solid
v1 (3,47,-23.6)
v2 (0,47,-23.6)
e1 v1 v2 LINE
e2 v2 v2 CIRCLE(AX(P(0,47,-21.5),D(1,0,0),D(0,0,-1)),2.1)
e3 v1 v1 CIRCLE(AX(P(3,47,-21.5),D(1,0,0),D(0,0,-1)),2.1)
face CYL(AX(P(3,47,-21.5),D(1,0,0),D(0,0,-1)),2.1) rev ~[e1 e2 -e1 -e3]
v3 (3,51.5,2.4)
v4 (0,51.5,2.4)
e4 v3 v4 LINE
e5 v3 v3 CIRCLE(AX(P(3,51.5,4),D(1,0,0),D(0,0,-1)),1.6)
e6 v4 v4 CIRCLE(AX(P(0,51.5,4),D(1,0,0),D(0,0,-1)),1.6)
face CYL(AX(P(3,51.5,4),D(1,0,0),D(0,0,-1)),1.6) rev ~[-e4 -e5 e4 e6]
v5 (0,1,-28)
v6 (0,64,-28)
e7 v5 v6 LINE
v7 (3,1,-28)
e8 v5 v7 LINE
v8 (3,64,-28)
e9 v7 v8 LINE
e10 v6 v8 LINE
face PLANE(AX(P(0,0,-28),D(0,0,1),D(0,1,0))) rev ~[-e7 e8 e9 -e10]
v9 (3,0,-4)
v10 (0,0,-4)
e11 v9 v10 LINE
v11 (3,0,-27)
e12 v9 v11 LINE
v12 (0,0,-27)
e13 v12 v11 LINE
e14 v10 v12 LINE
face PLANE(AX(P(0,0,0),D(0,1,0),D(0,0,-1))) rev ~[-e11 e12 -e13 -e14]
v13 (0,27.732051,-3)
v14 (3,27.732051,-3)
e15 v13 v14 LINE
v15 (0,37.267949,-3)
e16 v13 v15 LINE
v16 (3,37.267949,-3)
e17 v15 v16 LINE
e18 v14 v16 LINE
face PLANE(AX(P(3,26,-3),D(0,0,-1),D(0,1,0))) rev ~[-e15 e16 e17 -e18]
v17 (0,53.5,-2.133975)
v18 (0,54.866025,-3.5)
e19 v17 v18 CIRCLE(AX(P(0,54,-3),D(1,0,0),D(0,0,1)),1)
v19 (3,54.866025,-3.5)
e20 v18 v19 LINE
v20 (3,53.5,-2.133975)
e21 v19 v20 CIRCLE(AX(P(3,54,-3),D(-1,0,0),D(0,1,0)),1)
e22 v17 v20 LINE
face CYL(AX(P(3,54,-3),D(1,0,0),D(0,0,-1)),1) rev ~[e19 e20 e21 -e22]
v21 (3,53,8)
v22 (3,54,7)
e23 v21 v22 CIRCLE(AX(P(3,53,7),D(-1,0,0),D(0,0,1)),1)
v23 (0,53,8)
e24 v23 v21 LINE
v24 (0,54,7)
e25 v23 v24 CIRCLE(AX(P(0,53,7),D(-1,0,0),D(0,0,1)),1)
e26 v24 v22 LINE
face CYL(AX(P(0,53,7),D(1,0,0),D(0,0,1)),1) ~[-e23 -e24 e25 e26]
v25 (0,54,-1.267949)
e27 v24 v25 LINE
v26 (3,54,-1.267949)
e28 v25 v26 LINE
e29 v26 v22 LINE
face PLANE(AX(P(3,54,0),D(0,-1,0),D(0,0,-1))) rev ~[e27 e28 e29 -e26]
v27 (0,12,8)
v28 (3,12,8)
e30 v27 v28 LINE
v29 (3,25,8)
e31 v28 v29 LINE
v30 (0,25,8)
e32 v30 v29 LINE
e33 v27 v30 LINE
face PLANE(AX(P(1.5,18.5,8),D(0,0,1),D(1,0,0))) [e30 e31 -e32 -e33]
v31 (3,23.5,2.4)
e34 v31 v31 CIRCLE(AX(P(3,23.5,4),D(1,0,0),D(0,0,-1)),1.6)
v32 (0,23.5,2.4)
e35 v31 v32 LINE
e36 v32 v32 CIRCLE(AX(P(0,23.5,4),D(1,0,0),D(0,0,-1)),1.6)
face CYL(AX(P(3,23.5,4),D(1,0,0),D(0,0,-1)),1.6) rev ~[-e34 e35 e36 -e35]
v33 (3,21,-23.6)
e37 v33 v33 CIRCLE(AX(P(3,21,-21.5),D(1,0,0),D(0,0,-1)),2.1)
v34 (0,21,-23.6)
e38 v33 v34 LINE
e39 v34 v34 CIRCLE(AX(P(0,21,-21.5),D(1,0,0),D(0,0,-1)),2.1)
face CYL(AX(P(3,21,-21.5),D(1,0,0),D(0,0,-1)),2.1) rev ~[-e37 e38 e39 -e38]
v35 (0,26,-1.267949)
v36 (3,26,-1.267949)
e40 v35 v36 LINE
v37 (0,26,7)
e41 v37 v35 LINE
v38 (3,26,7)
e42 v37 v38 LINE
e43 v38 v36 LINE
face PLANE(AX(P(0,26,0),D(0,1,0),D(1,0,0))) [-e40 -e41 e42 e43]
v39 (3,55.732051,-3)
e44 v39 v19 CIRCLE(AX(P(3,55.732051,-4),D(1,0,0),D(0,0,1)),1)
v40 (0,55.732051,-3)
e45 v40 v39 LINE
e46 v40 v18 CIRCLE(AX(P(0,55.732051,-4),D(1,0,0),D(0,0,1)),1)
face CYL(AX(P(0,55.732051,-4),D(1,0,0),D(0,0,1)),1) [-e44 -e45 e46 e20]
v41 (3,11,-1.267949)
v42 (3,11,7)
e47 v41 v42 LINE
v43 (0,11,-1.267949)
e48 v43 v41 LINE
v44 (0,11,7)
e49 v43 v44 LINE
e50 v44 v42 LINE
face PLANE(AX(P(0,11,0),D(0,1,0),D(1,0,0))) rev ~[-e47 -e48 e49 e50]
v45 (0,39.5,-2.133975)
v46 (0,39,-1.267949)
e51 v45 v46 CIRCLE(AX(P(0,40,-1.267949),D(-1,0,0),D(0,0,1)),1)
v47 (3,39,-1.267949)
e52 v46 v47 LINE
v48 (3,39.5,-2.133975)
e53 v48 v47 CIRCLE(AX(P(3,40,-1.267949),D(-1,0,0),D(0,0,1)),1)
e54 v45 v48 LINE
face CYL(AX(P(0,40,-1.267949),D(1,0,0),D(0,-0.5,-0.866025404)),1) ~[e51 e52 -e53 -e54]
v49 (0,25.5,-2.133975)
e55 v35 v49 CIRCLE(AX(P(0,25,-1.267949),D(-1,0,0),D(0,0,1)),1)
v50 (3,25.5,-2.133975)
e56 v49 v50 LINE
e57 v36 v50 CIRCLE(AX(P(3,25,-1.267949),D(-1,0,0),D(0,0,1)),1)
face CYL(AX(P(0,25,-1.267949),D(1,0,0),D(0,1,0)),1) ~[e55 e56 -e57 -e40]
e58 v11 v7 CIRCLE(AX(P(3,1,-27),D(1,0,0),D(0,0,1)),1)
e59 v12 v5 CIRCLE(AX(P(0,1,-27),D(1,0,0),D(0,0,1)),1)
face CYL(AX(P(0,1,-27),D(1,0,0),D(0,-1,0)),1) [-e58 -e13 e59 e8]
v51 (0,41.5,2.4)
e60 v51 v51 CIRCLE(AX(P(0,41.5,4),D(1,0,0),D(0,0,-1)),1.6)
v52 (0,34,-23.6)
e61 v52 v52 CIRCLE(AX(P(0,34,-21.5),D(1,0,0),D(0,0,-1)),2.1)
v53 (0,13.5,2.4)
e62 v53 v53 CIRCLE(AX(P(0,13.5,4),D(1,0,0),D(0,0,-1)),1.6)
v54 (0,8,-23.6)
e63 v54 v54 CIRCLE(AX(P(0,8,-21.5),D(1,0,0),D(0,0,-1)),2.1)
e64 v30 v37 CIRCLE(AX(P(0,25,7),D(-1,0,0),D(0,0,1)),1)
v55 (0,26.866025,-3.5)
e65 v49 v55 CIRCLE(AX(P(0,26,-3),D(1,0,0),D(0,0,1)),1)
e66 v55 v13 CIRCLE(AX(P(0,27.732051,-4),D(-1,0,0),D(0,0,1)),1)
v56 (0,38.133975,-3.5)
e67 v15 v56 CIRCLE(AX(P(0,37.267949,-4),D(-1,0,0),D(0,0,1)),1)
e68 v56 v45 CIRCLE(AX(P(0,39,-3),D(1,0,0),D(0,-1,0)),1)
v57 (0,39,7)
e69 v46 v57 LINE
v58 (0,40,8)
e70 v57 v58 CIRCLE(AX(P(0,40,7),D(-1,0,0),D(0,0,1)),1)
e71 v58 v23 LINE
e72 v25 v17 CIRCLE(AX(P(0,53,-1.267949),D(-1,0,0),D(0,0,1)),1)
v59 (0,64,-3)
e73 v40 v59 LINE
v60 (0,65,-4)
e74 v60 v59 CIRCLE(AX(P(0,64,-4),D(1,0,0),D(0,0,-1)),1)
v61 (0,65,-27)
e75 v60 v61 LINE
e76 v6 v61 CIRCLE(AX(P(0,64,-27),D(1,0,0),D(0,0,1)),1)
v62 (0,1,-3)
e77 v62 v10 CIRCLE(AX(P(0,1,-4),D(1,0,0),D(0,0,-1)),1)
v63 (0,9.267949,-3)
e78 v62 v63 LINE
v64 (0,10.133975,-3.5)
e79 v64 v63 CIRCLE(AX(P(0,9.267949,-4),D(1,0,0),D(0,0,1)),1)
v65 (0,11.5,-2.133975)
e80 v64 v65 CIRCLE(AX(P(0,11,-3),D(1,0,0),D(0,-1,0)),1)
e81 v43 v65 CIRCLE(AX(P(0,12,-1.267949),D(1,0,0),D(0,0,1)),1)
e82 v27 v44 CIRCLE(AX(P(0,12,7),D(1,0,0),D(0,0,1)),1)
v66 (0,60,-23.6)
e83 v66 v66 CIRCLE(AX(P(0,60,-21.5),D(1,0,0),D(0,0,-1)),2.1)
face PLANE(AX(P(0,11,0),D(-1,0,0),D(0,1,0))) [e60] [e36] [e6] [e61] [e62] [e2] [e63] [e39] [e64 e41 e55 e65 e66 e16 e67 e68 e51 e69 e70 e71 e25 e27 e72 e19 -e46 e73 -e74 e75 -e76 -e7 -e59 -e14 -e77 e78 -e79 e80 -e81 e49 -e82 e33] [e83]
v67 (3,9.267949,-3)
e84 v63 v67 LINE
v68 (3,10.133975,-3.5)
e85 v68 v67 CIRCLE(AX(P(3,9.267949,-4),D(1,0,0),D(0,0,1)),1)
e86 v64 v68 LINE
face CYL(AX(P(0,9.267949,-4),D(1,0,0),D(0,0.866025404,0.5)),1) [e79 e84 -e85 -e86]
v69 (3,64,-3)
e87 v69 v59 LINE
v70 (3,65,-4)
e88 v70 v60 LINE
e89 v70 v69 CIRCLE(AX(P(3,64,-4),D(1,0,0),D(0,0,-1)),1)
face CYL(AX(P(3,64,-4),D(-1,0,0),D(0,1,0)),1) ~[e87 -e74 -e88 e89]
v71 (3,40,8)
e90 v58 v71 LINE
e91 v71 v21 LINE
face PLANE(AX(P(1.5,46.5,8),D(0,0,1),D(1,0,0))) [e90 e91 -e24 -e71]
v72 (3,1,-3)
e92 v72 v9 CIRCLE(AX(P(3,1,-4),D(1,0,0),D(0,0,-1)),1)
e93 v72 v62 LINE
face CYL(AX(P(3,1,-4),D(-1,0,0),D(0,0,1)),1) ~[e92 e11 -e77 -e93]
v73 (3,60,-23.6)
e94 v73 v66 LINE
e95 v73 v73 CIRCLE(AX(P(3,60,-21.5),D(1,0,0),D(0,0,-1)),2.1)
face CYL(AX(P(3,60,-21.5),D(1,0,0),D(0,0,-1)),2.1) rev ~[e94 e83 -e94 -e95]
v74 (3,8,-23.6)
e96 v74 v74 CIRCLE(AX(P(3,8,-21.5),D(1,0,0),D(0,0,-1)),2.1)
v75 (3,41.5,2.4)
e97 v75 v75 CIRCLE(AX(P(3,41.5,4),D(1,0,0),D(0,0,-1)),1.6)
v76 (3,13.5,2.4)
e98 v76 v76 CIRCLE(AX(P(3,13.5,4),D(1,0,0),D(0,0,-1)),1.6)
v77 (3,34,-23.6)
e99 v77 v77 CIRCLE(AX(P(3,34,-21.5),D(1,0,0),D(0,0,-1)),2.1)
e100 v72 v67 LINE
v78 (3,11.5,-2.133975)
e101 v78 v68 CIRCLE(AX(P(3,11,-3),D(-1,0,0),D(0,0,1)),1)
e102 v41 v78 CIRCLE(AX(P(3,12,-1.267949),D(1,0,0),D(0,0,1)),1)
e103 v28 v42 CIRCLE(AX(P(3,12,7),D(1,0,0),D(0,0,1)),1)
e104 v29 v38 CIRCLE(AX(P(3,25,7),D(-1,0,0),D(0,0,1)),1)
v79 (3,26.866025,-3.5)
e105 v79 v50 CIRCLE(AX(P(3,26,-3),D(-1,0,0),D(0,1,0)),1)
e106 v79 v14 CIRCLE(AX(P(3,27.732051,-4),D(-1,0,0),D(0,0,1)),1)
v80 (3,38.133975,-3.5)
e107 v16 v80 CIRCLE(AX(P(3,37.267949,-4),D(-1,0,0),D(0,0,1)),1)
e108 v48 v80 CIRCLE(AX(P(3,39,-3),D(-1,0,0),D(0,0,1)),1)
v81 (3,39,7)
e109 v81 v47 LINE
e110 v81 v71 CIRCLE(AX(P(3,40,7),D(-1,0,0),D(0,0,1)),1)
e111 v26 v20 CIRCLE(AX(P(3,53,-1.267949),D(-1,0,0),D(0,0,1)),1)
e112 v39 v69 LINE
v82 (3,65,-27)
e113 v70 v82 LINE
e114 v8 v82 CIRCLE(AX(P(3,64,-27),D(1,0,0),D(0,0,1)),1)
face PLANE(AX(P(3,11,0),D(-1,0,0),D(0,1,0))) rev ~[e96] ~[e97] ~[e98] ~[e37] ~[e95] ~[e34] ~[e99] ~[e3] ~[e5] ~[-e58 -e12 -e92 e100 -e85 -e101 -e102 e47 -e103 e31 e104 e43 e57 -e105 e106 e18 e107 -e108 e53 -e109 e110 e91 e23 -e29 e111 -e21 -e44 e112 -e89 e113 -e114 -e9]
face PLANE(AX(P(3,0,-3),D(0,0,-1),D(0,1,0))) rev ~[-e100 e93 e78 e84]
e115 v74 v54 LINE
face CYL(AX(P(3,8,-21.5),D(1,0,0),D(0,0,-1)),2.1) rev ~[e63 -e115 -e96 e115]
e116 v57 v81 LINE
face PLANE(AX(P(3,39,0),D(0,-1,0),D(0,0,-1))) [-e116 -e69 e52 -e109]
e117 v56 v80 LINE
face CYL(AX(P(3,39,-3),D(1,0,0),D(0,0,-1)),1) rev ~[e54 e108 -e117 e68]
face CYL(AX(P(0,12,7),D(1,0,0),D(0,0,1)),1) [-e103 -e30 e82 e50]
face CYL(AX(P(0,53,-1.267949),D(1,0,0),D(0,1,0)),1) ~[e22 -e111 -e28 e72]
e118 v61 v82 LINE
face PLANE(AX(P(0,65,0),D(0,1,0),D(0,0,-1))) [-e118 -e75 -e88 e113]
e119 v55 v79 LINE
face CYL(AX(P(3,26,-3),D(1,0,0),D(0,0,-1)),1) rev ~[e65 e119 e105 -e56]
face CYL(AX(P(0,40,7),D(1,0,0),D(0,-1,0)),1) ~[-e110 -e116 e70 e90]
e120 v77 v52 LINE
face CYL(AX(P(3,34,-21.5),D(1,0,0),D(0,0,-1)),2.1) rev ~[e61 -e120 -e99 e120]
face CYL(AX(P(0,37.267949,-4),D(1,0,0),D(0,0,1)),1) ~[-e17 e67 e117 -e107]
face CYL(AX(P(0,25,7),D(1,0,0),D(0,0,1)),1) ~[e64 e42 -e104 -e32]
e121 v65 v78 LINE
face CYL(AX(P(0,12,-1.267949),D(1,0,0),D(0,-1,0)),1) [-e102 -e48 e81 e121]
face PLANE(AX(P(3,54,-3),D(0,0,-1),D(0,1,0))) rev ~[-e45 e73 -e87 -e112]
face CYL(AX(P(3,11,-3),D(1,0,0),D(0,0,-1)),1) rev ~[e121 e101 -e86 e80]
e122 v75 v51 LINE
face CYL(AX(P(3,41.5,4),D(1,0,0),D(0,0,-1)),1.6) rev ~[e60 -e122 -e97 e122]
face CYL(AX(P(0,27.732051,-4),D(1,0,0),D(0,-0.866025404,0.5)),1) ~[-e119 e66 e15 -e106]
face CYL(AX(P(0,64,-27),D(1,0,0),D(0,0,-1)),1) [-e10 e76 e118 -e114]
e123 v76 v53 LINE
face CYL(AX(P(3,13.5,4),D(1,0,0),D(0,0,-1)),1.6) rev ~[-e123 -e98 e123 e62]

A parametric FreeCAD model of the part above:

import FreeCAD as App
import Part
import Sketcher
from FreeCAD import Vector


def edges_at(feature, points):
    """Names of the edges that pass closest to the given points."""
    edges = feature.Shape.Edges
    near = lambda p: min(range(len(edges)), key=lambda i: edges[i].distToShape(Part.Vertex(*p))[0])
    return sorted({f"Edge{near(p) + 1}" for p in points})

doc = App.newDocument("Part")
body = doc.addObject("PartDesign::Body", "Body")

# Sketch on YZ plane
sketch1 = body.newObject("Sketcher::SketchObject", "Sketch")
sketch1.AttachmentSupport = (doc.getObject("YZ_Plane"), [""])
sketch1.MapMode = "FlatFace"
sketch1.addGeometry([
    Part.LineSegment(Vector(65, 0, 0), Vector(0, 0, 0)),
    Part.LineSegment(Vector(0, 0, 0), Vector(0, -28, 0)),
    Part.LineSegment(Vector(0, -28, 0), Vector(65, -28, 0)),
    Part.LineSegment(Vector(65, -28, 0), Vector(65, 0, 0)),
], False)
sketch1.addConstraint([
    Sketcher.Constraint("Coincident", 0, 2, 1, 1),
    Sketcher.Constraint("Coincident", 1, 2, 2, 1),
    Sketcher.Constraint("Coincident", 2, 2, 3, 1),
    Sketcher.Constraint("Coincident", 3, 2, 0, 1),
    Sketcher.Constraint("Horizontal", 0),
    Sketcher.Constraint("Vertical", 1),
    Sketcher.Constraint("Horizontal", 2),
    Sketcher.Constraint("Vertical", 3),
    Sketcher.Constraint("Coincident", 0, 2, -1, 1),
    Sketcher.Constraint("DistanceX", 0, 2, 0, 1, 65.0),
    Sketcher.Constraint("DistanceY", 1, 2, 1, 1, 28.0),
])
pad1 = body.newObject("PartDesign::Pad", "Pad")
pad1.Profile = sketch1
pad1.Length = 3

# Sketch on YZ plane
sketch2 = body.newObject("Sketcher::SketchObject", "Sketch001")
sketch2.AttachmentSupport = (doc.getObject("YZ_Plane"), [""])
sketch2.MapMode = "FlatFace"
sketch2.AttachmentOffset = App.Placement(Vector(0, 0, 3), App.Rotation())
sketch2.addGeometry([
    Part.LineSegment(Vector(65, 0, 0), Vector(54, 0, 0)),  # 0
    Part.LineSegment(Vector(54, 0, 0), Vector(54, -3, 0)),  # 1
    Part.LineSegment(Vector(54, -3, 0), Vector(65, -3, 0)),  # 2
    Part.LineSegment(Vector(65, -3, 0), Vector(65, 0, 0)),  # 3
    Part.LineSegment(Vector(39, 0, 0), Vector(26, 0, 0)),  # 4
    Part.LineSegment(Vector(26, 0, 0), Vector(26, -3, 0)),  # 5
    Part.LineSegment(Vector(26, -3, 0), Vector(39, -3, 0)),  # 6
    Part.LineSegment(Vector(39, -3, 0), Vector(39, 0, 0)),  # 7
    Part.LineSegment(Vector(11, 0, 0), Vector(0, 0, 0)),  # 8
    Part.LineSegment(Vector(0, 0, 0), Vector(0, -3, 0)),  # 9
    Part.LineSegment(Vector(0, -3, 0), Vector(11, -3, 0)),  # 10
    Part.LineSegment(Vector(11, -3, 0), Vector(11, 0, 0)),  # 11
], False)
sketch2.addConstraint([
    Sketcher.Constraint("Coincident", 0, 2, 1, 1),
    Sketcher.Constraint("Coincident", 1, 2, 2, 1),
    Sketcher.Constraint("Coincident", 2, 2, 3, 1),
    Sketcher.Constraint("Coincident", 3, 2, 0, 1),
    Sketcher.Constraint("Coincident", 4, 2, 5, 1),
    Sketcher.Constraint("Coincident", 5, 2, 6, 1),
    Sketcher.Constraint("Coincident", 6, 2, 7, 1),
    Sketcher.Constraint("Coincident", 7, 2, 4, 1),
    Sketcher.Constraint("Coincident", 8, 2, 9, 1),
    Sketcher.Constraint("Coincident", 9, 2, 10, 1),
    Sketcher.Constraint("Coincident", 10, 2, 11, 1),
    Sketcher.Constraint("Coincident", 11, 2, 8, 1),
    Sketcher.Constraint("Horizontal", 0),
    Sketcher.Constraint("Vertical", 1),
    Sketcher.Constraint("Horizontal", 2),
    Sketcher.Constraint("Vertical", 3),
    Sketcher.Constraint("Horizontal", 4),
    Sketcher.Constraint("Vertical", 5),
    Sketcher.Constraint("Horizontal", 6),
    Sketcher.Constraint("Vertical", 7),
    Sketcher.Constraint("Horizontal", 8),
    Sketcher.Constraint("Vertical", 9),
    Sketcher.Constraint("Horizontal", 10),
    Sketcher.Constraint("Vertical", 11),
    Sketcher.Constraint("Coincident", 8, 2, -1, 1),
    Sketcher.Constraint("PointOnObject", 0, 2, -1),
    Sketcher.Constraint("PointOnObject", 4, 2, -1),
    Sketcher.Constraint("Horizontal", 2, 2, 5, 2),
    Sketcher.Constraint("Horizontal", 6, 2, 9, 2),
    Sketcher.Constraint("Equal", 2, 8),
    Sketcher.Constraint("DistanceX", 0, 2, 0, 1, 11.0),
    Sketcher.Constraint("DistanceX", 4, 2, 4, 1, 13.0),
    Sketcher.Constraint("DistanceY", 1, 2, 1, 1, 3.0),
    Sketcher.Constraint("DistanceX", -1, 1, 0, 2, 54.0),
    Sketcher.Constraint("DistanceX", -1, 1, 4, 2, 26.0),
])
pocket1 = body.newObject("PartDesign::Pocket", "Pocket")
pocket1.Profile = sketch2
pocket1.Type = "ThroughAll"

# Sketch on YZ plane
sketch3 = body.newObject("Sketcher::SketchObject", "Sketch002")
sketch3.AttachmentSupport = (doc.getObject("YZ_Plane"), [""])
sketch3.MapMode = "FlatFace"
sketch3.AttachmentOffset = App.Placement(Vector(0, 0, 3), App.Rotation())
sketch3.addGeometry([
    Part.Circle(Vector(60, -21.5, 0), Vector(0, 0, 1), 2.1),  # 0
    Part.Circle(Vector(47, -21.5, 0), Vector(0, 0, 1), 2.1),  # 1
    Part.Circle(Vector(34, -21.5, 0), Vector(0, 0, 1), 2.1),  # 2
    Part.Circle(Vector(21, -21.5, 0), Vector(0, 0, 1), 2.1),  # 3
    Part.Circle(Vector(8, -21.5, 0), Vector(0, 0, 1), 2.1),  # 4
], False)
sketch3.addConstraint([
    Sketcher.Constraint("Equal", 0, 1),
    Sketcher.Constraint("Equal", 1, 2),
    Sketcher.Constraint("Equal", 2, 3),
    Sketcher.Constraint("Equal", 3, 4),
    Sketcher.Constraint("Horizontal", 0, 3, 1, 3),
    Sketcher.Constraint("Horizontal", 1, 3, 2, 3),
    Sketcher.Constraint("Horizontal", 2, 3, 3, 3),
    Sketcher.Constraint("Horizontal", 3, 3, 4, 3),
    Sketcher.Constraint("Diameter", 0, 4.2),
    Sketcher.Constraint("DistanceX", -1, 1, 0, 3, 60.0),
    Sketcher.Constraint("DistanceX", -1, 1, 1, 3, 47.0),
    Sketcher.Constraint("DistanceX", -1, 1, 2, 3, 34.0),
    Sketcher.Constraint("DistanceX", -1, 1, 3, 3, 21.0),
    Sketcher.Constraint("DistanceX", -1, 1, 4, 3, 8.0),
    Sketcher.Constraint("DistanceY", 0, 3, -1, 1, 21.5),
])
pocket2 = body.newObject("PartDesign::Pocket", "Pocket001")
pocket2.Profile = sketch3
pocket2.Type = "ThroughAll"

# Sketch on YZ plane
sketch4 = body.newObject("Sketcher::SketchObject", "Sketch003")
sketch4.AttachmentSupport = (doc.getObject("YZ_Plane"), [""])
sketch4.MapMode = "FlatFace"
sketch4.AttachmentOffset = App.Placement(Vector(0, 0, 3), App.Rotation())
sketch4.addGeometry([
    Part.Circle(Vector(54, -3, 0), Vector(0, 0, 1), 1),
    Part.Circle(Vector(39, -3, 0), Vector(0, 0, 1), 1),
    Part.Circle(Vector(26, -3, 0), Vector(0, 0, 1), 1),
    Part.Circle(Vector(11, -3, 0), Vector(0, 0, 1), 1),
], False)
sketch4.addConstraint([
    Sketcher.Constraint("Equal", 0, 1),
    Sketcher.Constraint("Equal", 1, 2),
    Sketcher.Constraint("Equal", 2, 3),
    Sketcher.Constraint("Horizontal", 0, 3, 1, 3),
    Sketcher.Constraint("Horizontal", 1, 3, 2, 3),
    Sketcher.Constraint("Horizontal", 2, 3, 3, 3),
    Sketcher.Constraint("Diameter", 0, 2.0),
    Sketcher.Constraint("DistanceX", -1, 1, 0, 3, 54.0),
    Sketcher.Constraint("DistanceY", 0, 3, -1, 1, 3.0),
    Sketcher.Constraint("DistanceX", -1, 1, 1, 3, 39.0),
    Sketcher.Constraint("DistanceX", -1, 1, 2, 3, 26.0),
    Sketcher.Constraint("DistanceX", -1, 1, 3, 3, 11.0),
])
pocket3 = body.newObject("PartDesign::Pocket", "Pocket002")
pocket3.Profile = sketch4
pocket3.Type = "ThroughAll"

# Sketch on XY plane
sketch5 = body.newObject("Sketcher::SketchObject", "Sketch004")
sketch5.AttachmentSupport = (doc.getObject("XY_Plane"), [""])
sketch5.MapMode = "FlatFace"
sketch5.addGeometry([
    Part.LineSegment(Vector(0, 26, 0), Vector(0, 11, 0)),  # 0
    Part.LineSegment(Vector(0, 11, 0), Vector(3, 11, 0)),  # 1
    Part.LineSegment(Vector(3, 11, 0), Vector(3, 26, 0)),  # 2
    Part.LineSegment(Vector(3, 26, 0), Vector(0, 26, 0)),  # 3
    Part.LineSegment(Vector(0, 54, 0), Vector(0, 39, 0)),  # 4
    Part.LineSegment(Vector(0, 39, 0), Vector(3, 39, 0)),  # 5
    Part.LineSegment(Vector(3, 39, 0), Vector(3, 54, 0)),  # 6
    Part.LineSegment(Vector(3, 54, 0), Vector(0, 54, 0)),  # 7
], False)
sketch5.addConstraint([
    Sketcher.Constraint("Coincident", 0, 2, 1, 1),
    Sketcher.Constraint("Coincident", 1, 2, 2, 1),
    Sketcher.Constraint("Coincident", 2, 2, 3, 1),
    Sketcher.Constraint("Coincident", 3, 2, 0, 1),
    Sketcher.Constraint("Coincident", 4, 2, 5, 1),
    Sketcher.Constraint("Coincident", 5, 2, 6, 1),
    Sketcher.Constraint("Coincident", 6, 2, 7, 1),
    Sketcher.Constraint("Coincident", 7, 2, 4, 1),
    Sketcher.Constraint("Vertical", 0),
    Sketcher.Constraint("Horizontal", 1),
    Sketcher.Constraint("Vertical", 2),
    Sketcher.Constraint("Horizontal", 3),
    Sketcher.Constraint("Vertical", 4),
    Sketcher.Constraint("Horizontal", 5),
    Sketcher.Constraint("Vertical", 6),
    Sketcher.Constraint("Horizontal", 7),
    Sketcher.Constraint("PointOnObject", 0, 2, -2),
    Sketcher.Constraint("PointOnObject", 4, 2, -2),
    Sketcher.Constraint("Vertical", 2, 2, 5, 2),
    Sketcher.Constraint("Equal", 2, 4),
    Sketcher.Constraint("DistanceX", 1, 1, 1, 2, 3.0),
    Sketcher.Constraint("DistanceY", 0, 2, 0, 1, 15.0),
    Sketcher.Constraint("DistanceY", -1, 1, 0, 2, 11.0),
    Sketcher.Constraint("DistanceY", -1, 1, 4, 2, 39.0),
])
pad2 = body.newObject("PartDesign::Pad", "Pad001")
pad2.Profile = sketch5
pad2.Length = 8

# Sketch on YZ plane
sketch6 = body.newObject("Sketcher::SketchObject", "Sketch005")
sketch6.AttachmentSupport = (doc.getObject("YZ_Plane"), [""])
sketch6.MapMode = "FlatFace"
sketch6.AttachmentOffset = App.Placement(Vector(0, 0, 3), App.Rotation())
sketch6.addGeometry([
    Part.Circle(Vector(51.5, 4, 0), Vector(0, 0, 1), 1.6),
    Part.Circle(Vector(41.5, 4, 0), Vector(0, 0, 1), 1.6),
    Part.Circle(Vector(23.5, 4, 0), Vector(0, 0, 1), 1.6),
    Part.Circle(Vector(13.5, 4, 0), Vector(0, 0, 1), 1.6),
], False)
sketch6.addConstraint([
    Sketcher.Constraint("Equal", 0, 1),
    Sketcher.Constraint("Equal", 1, 2),
    Sketcher.Constraint("Equal", 2, 3),
    Sketcher.Constraint("Horizontal", 0, 3, 1, 3),
    Sketcher.Constraint("Horizontal", 1, 3, 2, 3),
    Sketcher.Constraint("Horizontal", 2, 3, 3, 3),
    Sketcher.Constraint("Diameter", 0, 3.2),
    Sketcher.Constraint("DistanceY", -1, 1, 0, 3, 4.0),
    Sketcher.Constraint("DistanceX", 1, 3, 0, 3, 10.0),
    Sketcher.Constraint("DistanceX", 2, 3, 1, 3, 18.0),
    Sketcher.Constraint("DistanceX", 3, 3, 2, 3, 10.0),
    Sketcher.Constraint("DistanceX", -1, 1, 0, 3, 51.5),
])
pocket4 = body.newObject("PartDesign::Pocket", "Pocket003")
pocket4.Profile = sketch6
pocket4.Length = 10
doc.recompute()

fillet = body.newObject("PartDesign::Fillet", "Fillet")
fillet.Base = (pocket4, edges_at(pocket4, [
    (1.5, 39, -2),
    (1.5, 27, -3),
    (1.5, 11, -2),
    (1.5, 11, 8),
    (1.5, 26, 8),
    (1.5, 39, 8),
    (1.5, 54, 8),
    (1.5, 65, -3),
    (1.5, 0, -3),
    (1.5, 65, -28),
    (1.5, 0, -28),
    (1.5, 54, -2),
    (1.5, 26, -2),
    (1.5, 38, -3),
    (1.5, 10, -3),
    (1.5, 55, -3),
]))
fillet.Radius = 1

doc.recompute()
